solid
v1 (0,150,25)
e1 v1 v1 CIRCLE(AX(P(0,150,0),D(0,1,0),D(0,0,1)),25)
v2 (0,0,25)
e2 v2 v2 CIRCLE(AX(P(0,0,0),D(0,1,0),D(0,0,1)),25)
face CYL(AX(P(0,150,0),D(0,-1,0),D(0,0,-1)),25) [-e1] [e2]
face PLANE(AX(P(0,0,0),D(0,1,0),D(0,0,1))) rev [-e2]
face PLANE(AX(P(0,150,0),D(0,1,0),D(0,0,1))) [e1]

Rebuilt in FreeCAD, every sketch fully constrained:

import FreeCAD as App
import Part
import Sketcher
from FreeCAD import Vector

doc = App.newDocument("Part")
body = doc.addObject("PartDesign::Body", "Body")

sketch1 = doc.addObject("Sketcher::SketchObject", "Sketch")
body.addObject(sketch1)
sketch1.AttachmentSupport = (doc.XZ_Plane, [""])
sketch1.MapMode = "FlatFace"
sketch1.addGeometry(Part.Circle(Vector(0, 0, 0), Vector(0, 0, 1), 25), False)
sketch1.addConstraint([
    Sketcher.Constraint("Coincident", 0, 3, -1, 1),
    Sketcher.Constraint("Diameter", 0, 50.0),
])
pad1 = doc.addObject("PartDesign::Pad", "Pad")
body.addObject(pad1)
pad1.Profile = sketch1
pad1.Length = 150
pad1.Reversed = True

doc.recompute()
